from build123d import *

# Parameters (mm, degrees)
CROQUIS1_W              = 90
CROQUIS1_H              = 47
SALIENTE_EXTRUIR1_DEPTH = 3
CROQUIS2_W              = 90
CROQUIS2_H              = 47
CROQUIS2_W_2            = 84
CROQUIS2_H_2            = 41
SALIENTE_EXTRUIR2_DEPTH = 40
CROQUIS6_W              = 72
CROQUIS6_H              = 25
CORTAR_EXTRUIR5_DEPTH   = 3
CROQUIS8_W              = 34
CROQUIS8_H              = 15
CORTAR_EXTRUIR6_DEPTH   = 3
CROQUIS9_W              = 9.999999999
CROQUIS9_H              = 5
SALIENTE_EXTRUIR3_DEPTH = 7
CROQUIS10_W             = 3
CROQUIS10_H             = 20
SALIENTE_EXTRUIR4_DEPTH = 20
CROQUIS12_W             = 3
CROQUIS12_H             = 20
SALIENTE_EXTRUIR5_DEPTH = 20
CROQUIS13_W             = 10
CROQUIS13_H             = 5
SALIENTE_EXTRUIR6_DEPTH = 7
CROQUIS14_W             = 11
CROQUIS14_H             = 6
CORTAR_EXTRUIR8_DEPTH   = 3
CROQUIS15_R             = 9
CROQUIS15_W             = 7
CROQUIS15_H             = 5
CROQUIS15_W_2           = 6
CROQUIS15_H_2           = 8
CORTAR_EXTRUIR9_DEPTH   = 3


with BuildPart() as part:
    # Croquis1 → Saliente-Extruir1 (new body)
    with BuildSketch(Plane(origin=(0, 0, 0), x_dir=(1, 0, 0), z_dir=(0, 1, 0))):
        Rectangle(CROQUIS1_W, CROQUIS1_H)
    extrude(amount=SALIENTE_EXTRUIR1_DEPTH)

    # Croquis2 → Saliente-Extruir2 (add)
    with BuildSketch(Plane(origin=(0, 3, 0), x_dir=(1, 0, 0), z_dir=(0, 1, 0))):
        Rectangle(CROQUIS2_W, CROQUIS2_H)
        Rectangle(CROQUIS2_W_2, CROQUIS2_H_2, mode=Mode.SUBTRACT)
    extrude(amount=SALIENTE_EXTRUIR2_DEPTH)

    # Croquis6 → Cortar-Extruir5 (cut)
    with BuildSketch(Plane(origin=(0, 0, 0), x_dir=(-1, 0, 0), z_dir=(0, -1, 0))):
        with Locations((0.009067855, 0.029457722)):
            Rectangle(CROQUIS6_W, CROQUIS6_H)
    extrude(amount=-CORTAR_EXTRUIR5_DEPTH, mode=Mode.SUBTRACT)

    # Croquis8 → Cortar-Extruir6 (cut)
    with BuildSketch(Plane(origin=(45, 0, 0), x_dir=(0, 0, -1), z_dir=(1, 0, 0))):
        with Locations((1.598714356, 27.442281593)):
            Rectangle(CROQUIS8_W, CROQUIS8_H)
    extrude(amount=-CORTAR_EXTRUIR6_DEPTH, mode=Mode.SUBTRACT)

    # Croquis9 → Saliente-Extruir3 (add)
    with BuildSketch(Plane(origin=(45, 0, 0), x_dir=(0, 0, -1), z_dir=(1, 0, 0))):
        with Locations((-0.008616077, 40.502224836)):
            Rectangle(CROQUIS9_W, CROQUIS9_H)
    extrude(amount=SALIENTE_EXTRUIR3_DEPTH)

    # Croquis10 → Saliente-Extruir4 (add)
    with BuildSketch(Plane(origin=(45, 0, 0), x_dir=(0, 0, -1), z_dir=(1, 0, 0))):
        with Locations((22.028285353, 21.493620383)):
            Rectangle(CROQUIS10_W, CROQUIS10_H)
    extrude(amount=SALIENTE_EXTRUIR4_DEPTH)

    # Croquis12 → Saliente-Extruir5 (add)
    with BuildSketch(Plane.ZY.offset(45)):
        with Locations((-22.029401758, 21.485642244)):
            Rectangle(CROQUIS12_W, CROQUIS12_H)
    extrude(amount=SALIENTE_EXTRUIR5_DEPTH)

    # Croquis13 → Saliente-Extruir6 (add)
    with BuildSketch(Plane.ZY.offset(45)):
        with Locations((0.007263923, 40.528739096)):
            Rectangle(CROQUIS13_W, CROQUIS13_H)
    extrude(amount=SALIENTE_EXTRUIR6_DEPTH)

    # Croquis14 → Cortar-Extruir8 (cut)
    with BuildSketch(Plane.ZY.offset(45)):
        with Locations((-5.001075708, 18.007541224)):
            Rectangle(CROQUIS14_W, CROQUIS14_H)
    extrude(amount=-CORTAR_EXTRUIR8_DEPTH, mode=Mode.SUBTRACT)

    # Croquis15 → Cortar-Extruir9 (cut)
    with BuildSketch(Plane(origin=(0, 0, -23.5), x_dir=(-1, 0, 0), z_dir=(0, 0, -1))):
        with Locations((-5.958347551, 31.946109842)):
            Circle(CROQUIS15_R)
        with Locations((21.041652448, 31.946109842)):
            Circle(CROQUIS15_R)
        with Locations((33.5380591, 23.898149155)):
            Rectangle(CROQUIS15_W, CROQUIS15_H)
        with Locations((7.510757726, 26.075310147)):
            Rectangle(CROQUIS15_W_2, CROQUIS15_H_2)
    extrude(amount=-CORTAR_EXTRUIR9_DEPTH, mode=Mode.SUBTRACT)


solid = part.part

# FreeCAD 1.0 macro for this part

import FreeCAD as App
import Part
import Sketcher
from FreeCAD import Vector
Q = App.Units.Quantity

doc = App.newDocument("Part")
body = doc.addObject("PartDesign::Body", "Body")

sketch1 = body.newObject("Sketcher::SketchObject", "Sketch")
sketch1.AttachmentSupport = (doc.getObject("XZ_Plane"), [""])
sketch1.MapMode = "FlatFace"
sketch1.addGeometry(Part.LineSegment(Vector(-45, -24, 0), Vector(-45, 24, 0)), False)
sketch1.addGeometry(Part.LineSegment(Vector(-45, 24, 0), Vector(45, 24, 0)), False)
sketch1.addGeometry(Part.LineSegment(Vector(45, 24, 0), Vector(45, -24, 0)), False)
sketch1.addGeometry(Part.LineSegment(Vector(45, -24, 0), Vector(-45, -24, 0)), False)
sketch1.addConstraint(Sketcher.Constraint("Coincident", 0, 2, 1, 1))
sketch1.addConstraint(Sketcher.Constraint("Coincident", 1, 2, 2, 1))
sketch1.addConstraint(Sketcher.Constraint("Coincident", 2, 2, 3, 1))
sketch1.addConstraint(Sketcher.Constraint("Coincident", 3, 2, 0, 1))
sketch1.addConstraint(Sketcher.Constraint("Vertical", 0))
sketch1.addConstraint(Sketcher.Constraint("Horizontal", 1))
sketch1.addConstraint(Sketcher.Constraint("Vertical", 2))
sketch1.addConstraint(Sketcher.Constraint("Horizontal", 3))
sketch1.addConstraint(Sketcher.Constraint("Symmetric", 0, 2, 2, 2, -1, 1))
sketch1.addConstraint(Sketcher.Constraint("DistanceX", 1, 1, 1, 2, Q("90 mm")))
sketch1.addConstraint(Sketcher.Constraint("DistanceY", 0, 1, 0, 2, Q("47 mm")))
pad1 = body.newObject("PartDesign::Pad", "Pad")
pad1.Profile = sketch1
pad1.Length = 3
pad1.Reversed = True

sketch2 = body.newObject("Sketcher::SketchObject", "Sketch001")
sketch2.AttachmentSupport = (doc.getObject("XZ_Plane"), [""])
sketch2.MapMode = "FlatFace"
sketch2.AttachmentOffset = App.Placement(Vector(0, 0, -3), App.Rotation())
sketch2.addGeometry(Part.LineSegment(Vector(-45, -24, 0), Vector(-45, 24, 0)), False)
sketch2.addGeometry(Part.LineSegment(Vector(-45, 24, 0), Vector(45, 24, 0)), False)
sketch2.addGeometry(Part.LineSegment(Vector(45, 24, 0), Vector(45, -24, 0)), False)
sketch2.addGeometry(Part.LineSegment(Vector(45, -24, 0), Vector(-45, -24, 0)), False)
sketch2.addGeometry(Part.LineSegment(Vector(42, 20, 0), Vector(-42, 20, 0)), False)
sketch2.addGeometry(Part.LineSegment(Vector(-42, 20, 0), Vector(-42, -20, 0)), False)
sketch2.addGeometry(Part.LineSegment(Vector(-42, -20, 0), Vector(42, -20, 0)), False)
sketch2.addGeometry(Part.LineSegment(Vector(42, -20, 0), Vector(42, 20, 0)), False)
sketch2.addConstraint(Sketcher.Constraint("Coincident", 0, 2, 1, 1))
sketch2.addConstraint(Sketcher.Constraint("Coincident", 1, 2, 2, 1))
sketch2.addConstraint(Sketcher.Constraint("Coincident", 2, 2, 3, 1))
sketch2.addConstraint(Sketcher.Constraint("Coincident", 3, 2, 0, 1))
sketch2.addConstraint(Sketcher.Constraint("Coincident", 4, 2, 5, 1))
sketch2.addConstraint(Sketcher.Constraint("Coincident", 5, 2, 6, 1))
sketch2.addConstraint(Sketcher.Constraint("Coincident", 6, 2, 7, 1))
sketch2.addConstraint(Sketcher.Constraint("Coincident", 7, 2, 4, 1))
sketch2.addConstraint(Sketcher.Constraint("Vertical", 0))
sketch2.addConstraint(Sketcher.Constraint("Horizontal", 1))
sketch2.addConstraint(Sketcher.Constraint("Vertical", 2))
sketch2.addConstraint(Sketcher.Constraint("Horizontal", 3))
sketch2.addConstraint(Sketcher.Constraint("Horizontal", 4))
sketch2.addConstraint(Sketcher.Constraint("Vertical", 5))
sketch2.addConstraint(Sketcher.Constraint("Horizontal", 6))
sketch2.addConstraint(Sketcher.Constraint("Vertical", 7))
sketch2.addConstraint(Sketcher.Constraint("Symmetric", 0, 2, 2, 2, -1, 1))
sketch2.addConstraint(Sketcher.Constraint("Symmetric", 4, 2, 6, 2, -1, 1))
sketch2.addConstraint(Sketcher.Constraint("DistanceX", 1, 1, 1, 2, Q("90 mm")))
sketch2.addConstraint(Sketcher.Constraint("DistanceX", 4, 2, 4, 1, Q("84 mm")))
sketch2.addConstraint(Sketcher.Constraint("DistanceY", 0, 1, 0, 2, Q("47 mm")))
sketch2.addConstraint(Sketcher.Constraint("DistanceY", 5, 2, 5, 1, Q("41 mm")))
pad2 = body.newObject("PartDesign::Pad", "Pad001")
pad2.Profile = sketch2
pad2.Length = 40
pad2.Reversed = True

sketch3 = body.newObject("Sketcher::SketchObject", "Sketch002")
sketch3.AttachmentSupport = (doc.getObject("XZ_Plane"), [""])
sketch3.MapMode = "FlatFace"
sketch3.addGeometry(Part.LineSegment(Vector(36, -13, 0), Vector(36, 12, 0)), False)
sketch3.addGeometry(Part.LineSegment(Vector(36, 12, 0), Vector(-36, 12, 0)), False)
sketch3.addGeometry(Part.LineSegment(Vector(-36, 12, 0), Vector(-36, -13, 0)), False)
sketch3.addGeometry(Part.LineSegment(Vector(-36, -13, 0), Vector(36, -13, 0)), False)
sketch3.addConstraint(Sketcher.Constraint("Coincident", 0, 2, 1, 1))
sketch3.addConstraint(Sketcher.Constraint("Coincident", 1, 2, 2, 1))
sketch3.addConstraint(Sketcher.Constraint("Coincident", 2, 2, 3, 1))
sketch3.addConstraint(Sketcher.Constraint("Coincident", 3, 2, 0, 1))
sketch3.addConstraint(Sketcher.Constraint("Vertical", 0))
sketch3.addConstraint(Sketcher.Constraint("Horizontal", 1))
sketch3.addConstraint(Sketcher.Constraint("Vertical", 2))
sketch3.addConstraint(Sketcher.Constraint("Horizontal", 3))
sketch3.addConstraint(Sketcher.Constraint("DistanceX", 1, 2, 1, 1, Q("72 mm")))
sketch3.addConstraint(Sketcher.Constraint("DistanceY", 0, 1, 0, 2, Q("25 mm")))
sketch3.addConstraint(Sketcher.Constraint("DistanceX", -1, 1, 0, 2, Q("35.990932 mm")))
sketch3.addConstraint(Sketcher.Constraint("DistanceY", -1, 1, 0, 2, Q("12.470542 mm")))
pocket1 = body.newObject("PartDesign::Pocket", "Pocket")
pocket1.Profile = sketch3
pocket1.Length = 3

sketch4 = body.newObject("Sketcher::SketchObject", "Sketch003")
sketch4.AttachmentSupport = (doc.getObject("YZ_Plane"), [""])
sketch4.MapMode = "FlatFace"
sketch4.AttachmentOffset = App.Placement(Vector(0, 0, 45), App.Rotation())
sketch4.addGeometry(Part.LineSegment(Vector(35, 15, 0), Vector(20, 15, 0)), False)
sketch4.addGeometry(Part.LineSegment(Vector(20, 15, 0), Vector(20, -19, 0)), False)
sketch4.addGeometry(Part.LineSegment(Vector(20, -19, 0), Vector(35, -19, 0)), False)
sketch4.addGeometry(Part.LineSegment(Vector(35, -19, 0), Vector(35, 15, 0)), False)
sketch4.addConstraint(Sketcher.Constraint("Coincident", 0, 2, 1, 1))
sketch4.addConstraint(Sketcher.Constraint("Coincident", 1, 2, 2, 1))
sketch4.addConstraint(Sketcher.Constraint("Coincident", 2, 2, 3, 1))
sketch4.addConstraint(Sketcher.Constraint("Coincident", 3, 2, 0, 1))
sketch4.addConstraint(Sketcher.Constraint("Horizontal", 0))
sketch4.addConstraint(Sketcher.Constraint("Vertical", 1))
sketch4.addConstraint(Sketcher.Constraint("Horizontal", 2))
sketch4.addConstraint(Sketcher.Constraint("Vertical", 3))
sketch4.addConstraint(Sketcher.Constraint("DistanceX", 0, 2, 0, 1, Q("15 mm")))
sketch4.addConstraint(Sketcher.Constraint("DistanceY", 1, 2, 1, 1, Q("34 mm")))
sketch4.addConstraint(Sketcher.Constraint("DistanceX", -1, 1, 0, 2, Q("19.942282 mm")))
sketch4.addConstraint(Sketcher.Constraint("DistanceY", -1, 1, 0, 2, Q("15.401286 mm")))
pocket2 = body.newObject("PartDesign::Pocket", "Pocket001")
pocket2.Profile = sketch4
pocket2.Length = 3

sketch5 = body.newObject("Sketcher::SketchObject", "Sketch004")
sketch5.AttachmentSupport = (doc.getObject("YZ_Plane"), [""])
sketch5.MapMode = "FlatFace"
sketch5.AttachmentOffset = App.Placement(Vector(0, 0, 45), App.Rotation())
sketch5.addGeometry(Part.LineSegment(Vector(43, 5, 0), Vector(38, 5, 0)), False)
sketch5.addGeometry(Part.LineSegment(Vector(38, 5, 0), Vector(38, -5, 0)), False)
sketch5.addGeometry(Part.LineSegment(Vector(38, -5, 0), Vector(43, -5, 0)), False)
sketch5.addGeometry(Part.LineSegment(Vector(43, -5, 0), Vector(43, 5, 0)), False)
sketch5.addConstraint(Sketcher.Constraint("Coincident", 0, 2, 1, 1))
sketch5.addConstraint(Sketcher.Constraint("Coincident", 1, 2, 2, 1))
sketch5.addConstraint(Sketcher.Constraint("Coincident", 2, 2, 3, 1))
sketch5.addConstraint(Sketcher.Constraint("Coincident", 3, 2, 0, 1))
sketch5.addConstraint(Sketcher.Constraint("Horizontal", 0))
sketch5.addConstraint(Sketcher.Constraint("Vertical", 1))
sketch5.addConstraint(Sketcher.Constraint("Horizontal", 2))
sketch5.addConstraint(Sketcher.Constraint("Vertical", 3))
sketch5.addConstraint(Sketcher.Constraint("DistanceX", 0, 2, 0, 1, Q("5 mm")))
sketch5.addConstraint(Sketcher.Constraint("DistanceY", 1, 2, 1, 1, Q("10 mm")))
sketch5.addConstraint(Sketcher.Constraint("DistanceX", -1, 1, 0, 2, Q("38.002225 mm")))
sketch5.addConstraint(Sketcher.Constraint("DistanceY", -1, 1, 0, 2, Q("5.008616 mm")))
pad3 = body.newObject("PartDesign::Pad", "Pad002")
pad3.Profile = sketch5
pad3.Length = 7

sketch6 = body.newObject("Sketcher::SketchObject", "Sketch005")
sketch6.AttachmentSupport = (doc.getObject("YZ_Plane"), [""])
sketch6.MapMode = "FlatFace"
sketch6.AttachmentOffset = App.Placement(Vector(0, 0, 45), App.Rotation())
sketch6.addGeometry(Part.LineSegment(Vector(31.5, -20.5, 0), Vector(11.5, -20.5, 0)), False)
sketch6.addGeometry(Part.LineSegment(Vector(11.5, -20.5, 0), Vector(11.5, -23.5, 0)), False)
sketch6.addGeometry(Part.LineSegment(Vector(11.5, -23.5, 0), Vector(31.5, -23.5, 0)), False)
sketch6.addGeometry(Part.LineSegment(Vector(31.5, -23.5, 0), Vector(31.5, -20.5, 0)), False)
sketch6.addConstraint(Sketcher.Constraint("Coincident", 0, 2, 1, 1))
sketch6.addConstraint(Sketcher.Constraint("Coincident", 1, 2, 2, 1))
sketch6.addConstraint(Sketcher.Constraint("Coincident", 2, 2, 3, 1))
sketch6.addConstraint(Sketcher.Constraint("Coincident", 3, 2, 0, 1))
sketch6.addConstraint(Sketcher.Constraint("Horizontal", 0))
sketch6.addConstraint(Sketcher.Constraint("Vertical", 1))
sketch6.addConstraint(Sketcher.Constraint("Horizontal", 2))
sketch6.addConstraint(Sketcher.Constraint("Vertical", 3))
sketch6.addConstraint(Sketcher.Constraint("DistanceX", 0, 2, 0, 1, Q("20 mm")))
sketch6.addConstraint(Sketcher.Constraint("DistanceY", 1, 2, 1, 1, Q("3 mm")))
sketch6.addConstraint(Sketcher.Constraint("DistanceX", -1, 1, 0, 2, Q("11.49362 mm")))
sketch6.addConstraint(Sketcher.Constraint("DistanceY", 0, 2, -1, 1, Q("20.528285 mm")))
pad4 = body.newObject("PartDesign::Pad", "Pad003")
pad4.Profile = sketch6
pad4.Length = 20

sketch7 = body.newObject("Sketcher::SketchObject", "Sketch006")
sketch7.AttachmentSupport = (doc.getObject("YZ_Plane"), [""])
sketch7.MapMode = "FlatFace"
sketch7.AttachmentOffset = App.Placement(Vector(0, 0, -45), App.Rotation())
sketch7.addGeometry(Part.LineSegment(Vector(31.5, -23.5, 0), Vector(11.5, -23.5, 0)), False)
sketch7.addGeometry(Part.LineSegment(Vector(11.5, -23.5, 0), Vector(11.5, -20.5, 0)), False)
sketch7.addGeometry(Part.LineSegment(Vector(11.5, -20.5, 0), Vector(31.5, -20.5, 0)), False)
sketch7.addGeometry(Part.LineSegment(Vector(31.5, -20.5, 0), Vector(31.5, -23.5, 0)), False)
sketch7.addConstraint(Sketcher.Constraint("Coincident", 0, 2, 1, 1))
sketch7.addConstraint(Sketcher.Constraint("Coincident", 1, 2, 2, 1))
sketch7.addConstraint(Sketcher.Constraint("Coincident", 2, 2, 3, 1))
sketch7.addConstraint(Sketcher.Constraint("Coincident", 3, 2, 0, 1))
sketch7.addConstraint(Sketcher.Constraint("Horizontal", 0))
sketch7.addConstraint(Sketcher.Constraint("Vertical", 1))
sketch7.addConstraint(Sketcher.Constraint("Horizontal", 2))
sketch7.addConstraint(Sketcher.Constraint("Vertical", 3))
sketch7.addConstraint(Sketcher.Constraint("DistanceX", 0, 2, 0, 1, Q("20 mm")))
sketch7.addConstraint(Sketcher.Constraint("DistanceY", 1, 1, 1, 2, Q("3 mm")))
sketch7.addConstraint(Sketcher.Constraint("DistanceY", 0, 2, -1, 1, Q("23.529402 mm")))
sketch7.addConstraint(Sketcher.Constraint("DistanceX", -1, 1, 0, 2, Q("11.485642 mm")))
pad5 = body.newObject("PartDesign::Pad", "Pad004")
pad5.Profile = sketch7
pad5.Length = 20
pad5.Reversed = True

sketch8 = body.newObject("Sketcher::SketchObject", "Sketch007")
sketch8.AttachmentSupport = (doc.getObject("YZ_Plane"), [""])
sketch8.MapMode = "FlatFace"
sketch8.AttachmentOffset = App.Placement(Vector(0, 0, -45), App.Rotation())
sketch8.addGeometry(Part.LineSegment(Vector(43, -5, 0), Vector(38, -5, 0)), False)
sketch8.addGeometry(Part.LineSegment(Vector(38, -5, 0), Vector(38, 5, 0)), False)
sketch8.addGeometry(Part.LineSegment(Vector(38, 5, 0), Vector(43, 5, 0)), False)
sketch8.addGeometry(Part.LineSegment(Vector(43, 5, 0), Vector(43, -5, 0)), False)
sketch8.addConstraint(Sketcher.Constraint("Coincident", 0, 2, 1, 1))
sketch8.addConstraint(Sketcher.Constraint("Coincident", 1, 2, 2, 1))
sketch8.addConstraint(Sketcher.Constraint("Coincident", 2, 2, 3, 1))
sketch8.addConstraint(Sketcher.Constraint("Coincident", 3, 2, 0, 1))
sketch8.addConstraint(Sketcher.Constraint("Horizontal", 0))
sketch8.addConstraint(Sketcher.Constraint("Vertical", 1))
sketch8.addConstraint(Sketcher.Constraint("Horizontal", 2))
sketch8.addConstraint(Sketcher.Constraint("Vertical", 3))
sketch8.addConstraint(Sketcher.Constraint("DistanceX", 0, 2, 0, 1, Q("5 mm")))
sketch8.addConstraint(Sketcher.Constraint("DistanceY", 1, 1, 1, 2, Q("10 mm")))
sketch8.addConstraint(Sketcher.Constraint("DistanceX", -1, 1, 0, 2, Q("38.028739 mm")))
sketch8.addConstraint(Sketcher.Constraint("DistanceY", 0, 2, -1, 1, Q("4.992736 mm")))
pad6 = body.newObject("PartDesign::Pad", "Pad005")
pad6.Profile = sketch8
pad6.Length = 7
pad6.Reversed = True

sketch9 = body.newObject("Sketcher::SketchObject", "Sketch008")
sketch9.AttachmentSupport = (doc.getObject("YZ_Plane"), [""])
sketch9.MapMode = "FlatFace"
sketch9.AttachmentOffset = App.Placement(Vector(0, 0, -45), App.Rotation())
sketch9.addGeometry(Part.LineSegment(Vector(21, -11, 0), Vector(15, -11, 0)), False)
sketch9.addGeometry(Part.LineSegment(Vector(15, -11, 0), Vector(15, 0, 0)), False)
sketch9.addGeometry(Part.LineSegment(Vector(15, 0, 0), Vector(21, 0, 0)), False)
sketch9.addGeometry(Part.LineSegment(Vector(21, 0, 0), Vector(21, -11, 0)), False)
sketch9.addConstraint(Sketcher.Constraint("Coincident", 0, 2, 1, 1))
sketch9.addConstraint(Sketcher.Constraint("Coincident", 1, 2, 2, 1))
sketch9.addConstraint(Sketcher.Constraint("Coincident", 2, 2, 3, 1))
sketch9.addConstraint(Sketcher.Constraint("Coincident", 3, 2, 0, 1))
sketch9.addConstraint(Sketcher.Constraint("Horizontal", 0))
sketch9.addConstraint(Sketcher.Constraint("Vertical", 1))
sketch9.addConstraint(Sketcher.Constraint("Horizontal", 2))
sketch9.addConstraint(Sketcher.Constraint("Vertical", 3))
sketch9.addConstraint(Sketcher.Constraint("DistanceX", 0, 2, 0, 1, Q("6 mm")))
sketch9.addConstraint(Sketcher.Constraint("DistanceY", 1, 1, 1, 2, Q("11 mm")))
sketch9.addConstraint(Sketcher.Constraint("DistanceX", -1, 1, 0, 2, Q("15.007541 mm")))
sketch9.addConstraint(Sketcher.Constraint("DistanceY", 0, 2, -1, 1, Q("10.501076 mm")))
pocket3 = body.newObject("PartDesign::Pocket", "Pocket002")
pocket3.Profile = sketch9
pocket3.Length = 3
pocket3.Reversed = True

sketch10 = body.newObject("Sketcher::SketchObject", "Sketch009")
sketch10.AttachmentSupport = (doc.getObject("XY_Plane"), [""])
sketch10.MapMode = "FlatFace"
sketch10.AttachmentOffset = App.Placement(Vector(0, 0, -23.5), App.Rotation())
sketch10.addGeometry(Part.Circle(Vector(6, 32, 0), Vector(0, 0, 1), 9), False)
sketch10.addGeometry(Part.Circle(Vector(-21, 32, 0), Vector(0, 0, 1), 9), False)
sketch10.addGeometry(Part.LineSegment(Vector(-30, 26, 0), Vector(-30, 21, 0)), False)
sketch10.addGeometry(Part.LineSegment(Vector(-30, 21, 0), Vector(-37, 21, 0)), False)
sketch10.addGeometry(Part.LineSegment(Vector(-37, 21, 0), Vector(-37, 26, 0)), False)
sketch10.addGeometry(Part.LineSegment(Vector(-37, 26, 0), Vector(-30, 26, 0)), False)
sketch10.addGeometry(Part.LineSegment(Vector(-5, 30, 0), Vector(-5, 22, 0)), False)
sketch10.addGeometry(Part.LineSegment(Vector(-5, 22, 0), Vector(-11, 22, 0)), False)
sketch10.addGeometry(Part.LineSegment(Vector(-11, 22, 0), Vector(-11, 30, 0)), False)
sketch10.addGeometry(Part.LineSegment(Vector(-11, 30, 0), Vector(-5, 30, 0)), False)
sketch10.addConstraint(Sketcher.Constraint("Coincident", 2, 2, 3, 1))
sketch10.addConstraint(Sketcher.Constraint("Coincident", 3, 2, 4, 1))
sketch10.addConstraint(Sketcher.Constraint("Coincident", 4, 2, 5, 1))
sketch10.addConstraint(Sketcher.Constraint("Coincident", 5, 2, 2, 1))
sketch10.addConstraint(Sketcher.Constraint("Coincident", 6, 2, 7, 1))
sketch10.addConstraint(Sketcher.Constraint("Coincident", 7, 2, 8, 1))
sketch10.addConstraint(Sketcher.Constraint("Coincident", 8, 2, 9, 1))
sketch10.addConstraint(Sketcher.Constraint("Coincident", 9, 2, 6, 1))
sketch10.addConstraint(Sketcher.Constraint("Vertical", 2))
sketch10.addConstraint(Sketcher.Constraint("Horizontal", 3))
sketch10.addConstraint(Sketcher.Constraint("Vertical", 4))
sketch10.addConstraint(Sketcher.Constraint("Horizontal", 5))
sketch10.addConstraint(Sketcher.Constraint("Vertical", 6))
sketch10.addConstraint(Sketcher.Constraint("Horizontal", 7))
sketch10.addConstraint(Sketcher.Constraint("Vertical", 8))
sketch10.addConstraint(Sketcher.Constraint("Horizontal", 9))
sketch10.addConstraint(Sketcher.Constraint("Equal", 0, 1))
sketch10.addConstraint(Sketcher.Constraint("Horizontal", 0, 3, 1, 3))
sketch10.addConstraint(Sketcher.Constraint("Diameter", 0, Q("18 mm")))
sketch10.addConstraint(Sketcher.Constraint("DistanceX", 3, 2, 3, 1, Q("7 mm")))
sketch10.addConstraint(Sketcher.Constraint("DistanceX", 7, 2, 7, 1, Q("6 mm")))
sketch10.addConstraint(Sketcher.Constraint("DistanceY", 2, 2, 2, 1, Q("5 mm")))
sketch10.addConstraint(Sketcher.Constraint("DistanceY", 6, 2, 6, 1, Q("8 mm")))
sketch10.addConstraint(Sketcher.Constraint("DistanceX", 1, 3, 0, 3, Q("27 mm")))
sketch10.addConstraint(Sketcher.Constraint("DistanceY", 6, 2, 0, 3, Q("9.8708 mm")))
sketch10.addConstraint(Sketcher.Constraint("DistanceX", 2, 2, 6, 2, Q("25.527301 mm")))
sketch10.addConstraint(Sketcher.Constraint("DistanceY", -1, 1, 0, 3, Q("31.94611 mm")))
sketch10.addConstraint(Sketcher.Constraint("DistanceX", 2, 2, -1, 1, Q("30.038059 mm")))
sketch10.addConstraint(Sketcher.Constraint("DistanceY", -1, 1, 2, 2, Q("21.398149 mm")))
sketch10.addConstraint(Sketcher.Constraint("DistanceX", -1, 1, 0, 3, Q("5.958348 mm")))
pocket4 = body.newObject("PartDesign::Pocket", "Pocket003")
pocket4.Profile = sketch10
pocket4.Length = 3
pocket4.Reversed = True

doc.recompute()
